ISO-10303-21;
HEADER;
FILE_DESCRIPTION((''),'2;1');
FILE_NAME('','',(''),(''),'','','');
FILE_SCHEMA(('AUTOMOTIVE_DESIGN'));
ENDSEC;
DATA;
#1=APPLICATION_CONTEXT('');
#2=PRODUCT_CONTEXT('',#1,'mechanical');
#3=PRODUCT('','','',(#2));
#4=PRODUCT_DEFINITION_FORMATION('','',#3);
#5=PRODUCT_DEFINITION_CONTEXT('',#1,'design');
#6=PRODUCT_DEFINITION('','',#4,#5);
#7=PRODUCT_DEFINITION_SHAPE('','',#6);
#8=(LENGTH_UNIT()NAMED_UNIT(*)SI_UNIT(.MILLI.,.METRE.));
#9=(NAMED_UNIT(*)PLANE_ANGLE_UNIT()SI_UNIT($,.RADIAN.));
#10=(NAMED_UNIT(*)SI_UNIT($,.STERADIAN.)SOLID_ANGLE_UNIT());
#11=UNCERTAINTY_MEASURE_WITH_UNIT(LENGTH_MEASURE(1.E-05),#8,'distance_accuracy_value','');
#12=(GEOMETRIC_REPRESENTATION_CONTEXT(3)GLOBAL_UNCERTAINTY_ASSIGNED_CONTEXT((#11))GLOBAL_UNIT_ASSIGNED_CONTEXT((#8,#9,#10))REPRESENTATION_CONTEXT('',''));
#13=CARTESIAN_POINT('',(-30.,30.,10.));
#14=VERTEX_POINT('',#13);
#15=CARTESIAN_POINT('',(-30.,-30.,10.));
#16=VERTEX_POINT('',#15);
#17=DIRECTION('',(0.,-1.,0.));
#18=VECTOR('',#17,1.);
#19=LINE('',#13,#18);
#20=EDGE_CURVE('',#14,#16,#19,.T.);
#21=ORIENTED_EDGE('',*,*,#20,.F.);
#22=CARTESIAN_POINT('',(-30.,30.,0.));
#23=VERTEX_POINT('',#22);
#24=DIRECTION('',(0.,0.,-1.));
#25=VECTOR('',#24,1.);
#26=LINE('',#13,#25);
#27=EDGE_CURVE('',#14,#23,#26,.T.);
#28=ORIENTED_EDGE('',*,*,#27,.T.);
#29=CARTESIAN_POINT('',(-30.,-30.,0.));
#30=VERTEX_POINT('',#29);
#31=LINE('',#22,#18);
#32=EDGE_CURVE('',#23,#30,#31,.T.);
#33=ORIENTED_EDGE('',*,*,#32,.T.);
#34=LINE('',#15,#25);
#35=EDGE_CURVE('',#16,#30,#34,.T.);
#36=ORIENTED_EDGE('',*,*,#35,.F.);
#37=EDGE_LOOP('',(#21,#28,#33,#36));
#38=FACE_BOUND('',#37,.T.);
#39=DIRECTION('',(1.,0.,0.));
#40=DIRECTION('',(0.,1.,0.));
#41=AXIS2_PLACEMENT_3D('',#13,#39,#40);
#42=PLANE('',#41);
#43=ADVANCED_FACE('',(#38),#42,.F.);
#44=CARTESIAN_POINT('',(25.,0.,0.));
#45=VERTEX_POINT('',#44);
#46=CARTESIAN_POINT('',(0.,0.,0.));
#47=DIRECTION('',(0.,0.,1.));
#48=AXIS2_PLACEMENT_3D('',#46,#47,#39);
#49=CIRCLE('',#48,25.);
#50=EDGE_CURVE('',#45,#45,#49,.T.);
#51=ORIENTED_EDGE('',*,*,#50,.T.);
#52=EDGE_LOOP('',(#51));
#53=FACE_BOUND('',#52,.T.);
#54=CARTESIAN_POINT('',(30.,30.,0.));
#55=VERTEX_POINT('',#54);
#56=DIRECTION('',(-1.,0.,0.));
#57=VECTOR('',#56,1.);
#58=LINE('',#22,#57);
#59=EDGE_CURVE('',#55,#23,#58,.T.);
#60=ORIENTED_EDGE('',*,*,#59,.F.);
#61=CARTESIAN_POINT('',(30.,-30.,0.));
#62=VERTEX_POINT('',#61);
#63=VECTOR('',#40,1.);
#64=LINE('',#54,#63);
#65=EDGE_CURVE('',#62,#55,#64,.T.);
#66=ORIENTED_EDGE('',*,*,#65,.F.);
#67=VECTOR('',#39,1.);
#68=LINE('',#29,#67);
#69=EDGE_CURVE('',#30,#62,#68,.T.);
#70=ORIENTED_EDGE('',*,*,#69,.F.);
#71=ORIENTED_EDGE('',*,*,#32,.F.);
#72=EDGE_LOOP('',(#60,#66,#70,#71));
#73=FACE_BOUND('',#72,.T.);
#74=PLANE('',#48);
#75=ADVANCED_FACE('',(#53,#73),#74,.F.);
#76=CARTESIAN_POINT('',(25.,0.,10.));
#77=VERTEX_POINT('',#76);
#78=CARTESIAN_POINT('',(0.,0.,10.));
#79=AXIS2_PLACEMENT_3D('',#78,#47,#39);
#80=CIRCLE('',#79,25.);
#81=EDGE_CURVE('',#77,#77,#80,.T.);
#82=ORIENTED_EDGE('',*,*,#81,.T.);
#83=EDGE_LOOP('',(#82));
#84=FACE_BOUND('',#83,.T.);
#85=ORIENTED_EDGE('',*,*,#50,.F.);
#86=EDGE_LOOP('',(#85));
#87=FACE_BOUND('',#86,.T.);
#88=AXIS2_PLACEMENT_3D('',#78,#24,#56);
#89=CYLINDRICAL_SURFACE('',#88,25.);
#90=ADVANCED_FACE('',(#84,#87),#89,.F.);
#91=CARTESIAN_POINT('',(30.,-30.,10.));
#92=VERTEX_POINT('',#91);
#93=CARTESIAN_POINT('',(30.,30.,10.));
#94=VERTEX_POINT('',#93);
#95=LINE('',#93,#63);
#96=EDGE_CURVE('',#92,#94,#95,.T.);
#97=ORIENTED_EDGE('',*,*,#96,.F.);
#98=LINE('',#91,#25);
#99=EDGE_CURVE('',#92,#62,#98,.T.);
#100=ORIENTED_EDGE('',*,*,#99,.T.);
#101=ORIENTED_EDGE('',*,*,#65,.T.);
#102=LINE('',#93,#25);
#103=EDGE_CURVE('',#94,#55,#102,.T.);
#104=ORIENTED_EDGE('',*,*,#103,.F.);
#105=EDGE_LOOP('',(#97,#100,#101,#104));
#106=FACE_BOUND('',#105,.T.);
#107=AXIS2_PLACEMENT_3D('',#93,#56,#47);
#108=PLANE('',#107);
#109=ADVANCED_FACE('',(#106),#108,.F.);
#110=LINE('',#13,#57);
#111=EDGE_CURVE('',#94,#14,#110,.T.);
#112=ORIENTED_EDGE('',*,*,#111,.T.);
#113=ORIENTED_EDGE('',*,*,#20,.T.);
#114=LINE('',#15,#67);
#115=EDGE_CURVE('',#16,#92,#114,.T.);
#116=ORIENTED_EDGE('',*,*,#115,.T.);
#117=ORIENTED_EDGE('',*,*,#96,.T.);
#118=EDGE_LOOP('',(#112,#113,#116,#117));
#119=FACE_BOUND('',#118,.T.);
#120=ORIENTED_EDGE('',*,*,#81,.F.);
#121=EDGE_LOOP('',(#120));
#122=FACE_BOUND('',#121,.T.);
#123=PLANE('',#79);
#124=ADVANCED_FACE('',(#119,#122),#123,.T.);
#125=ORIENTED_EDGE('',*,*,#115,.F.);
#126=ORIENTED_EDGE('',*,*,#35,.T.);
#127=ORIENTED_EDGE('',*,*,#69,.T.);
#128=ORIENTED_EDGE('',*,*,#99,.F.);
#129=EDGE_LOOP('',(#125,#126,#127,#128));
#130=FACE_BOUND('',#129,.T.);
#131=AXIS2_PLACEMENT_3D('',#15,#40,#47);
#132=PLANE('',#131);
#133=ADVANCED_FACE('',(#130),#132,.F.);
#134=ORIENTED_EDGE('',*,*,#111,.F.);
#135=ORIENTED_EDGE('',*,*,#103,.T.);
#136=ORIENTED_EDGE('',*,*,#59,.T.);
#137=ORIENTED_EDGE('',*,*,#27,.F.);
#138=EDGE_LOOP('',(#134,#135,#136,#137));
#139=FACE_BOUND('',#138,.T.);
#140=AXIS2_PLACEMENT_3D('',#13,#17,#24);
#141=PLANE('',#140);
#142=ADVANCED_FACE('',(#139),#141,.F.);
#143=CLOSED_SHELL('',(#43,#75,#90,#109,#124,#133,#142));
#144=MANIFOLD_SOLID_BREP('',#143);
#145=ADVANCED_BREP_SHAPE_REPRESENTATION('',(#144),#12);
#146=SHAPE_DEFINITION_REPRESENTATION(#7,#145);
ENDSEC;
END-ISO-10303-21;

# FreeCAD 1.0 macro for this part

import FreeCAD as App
import Part
import Sketcher

V = App.Vector
Q = App.Units.Quantity


def add_polygon(sketch, points):
    """Adds a closed chain of lines whose ends are joined by coincident constraints."""
    first, n = sketch.GeometryCount, len(points)
    for a, b in zip(points, points[1:] + points[:1]):
        sketch.addGeometry(Part.LineSegment(App.Vector(*a, 0), App.Vector(*b, 0)), False)
    for i in range(n):
        sketch.addConstraint(Sketcher.Constraint("Coincident", first + i, 2, first + (i + 1) % n, 1))

doc = App.newDocument("Part")
params = doc.addObject("Spreadsheet::Sheet", "Params")
for row, (alias, value) in enumerate([
    ("sketch1_diameter", "50 mm"),
    ("sketch1_width", "60 mm"),
    ("pad1_length", "10 mm"),
], start=1):
    params.set(f"A{row}", alias)
    params.set(f"B{row}", "=" + value)
    params.setAlias(f"B{row}", alias)

body = doc.addObject("PartDesign::Body", "Body")

# Sketch on XY plane
sketch1 = doc.addObject("Sketcher::SketchObject", "Sketch")
body.addObject(sketch1)
sketch1.AttachmentSupport = (doc.XY_Plane, [""])
sketch1.MapMode = "FlatFace"
add_polygon(sketch1, [(-30, 30), (-30, -30), (30, -30), (30, 30)])  # lines 0-3
sketch1.addGeometry(Part.Circle(V(0, 0, 0), V(0, 0, 1), 25), False)  # 4
sketch1.addConstraint([
    Sketcher.Constraint("Vertical", 0),
    Sketcher.Constraint("Horizontal", 1),
    Sketcher.Constraint("Vertical", 2),
    Sketcher.Constraint("Horizontal", 3),
    Sketcher.Constraint("Coincident", 4, 3, -1, 1),
    Sketcher.Constraint("Symmetric", 0, 2, 2, 2, -1, 1),
    Sketcher.Constraint("Equal", 3, 0),
    Sketcher.Constraint("Diameter", 4, Q("50 mm")),
    Sketcher.Constraint("DistanceX", 1, 1, 1, 2, Q("60 mm")),
])
sketch1.setExpression("Constraints[11]", "Params.sketch1_diameter")
sketch1.setExpression("Constraints[12]", "Params.sketch1_width")
pad1 = doc.addObject("PartDesign::Pad", "Pad")
body.addObject(pad1)
pad1.Profile = sketch1
pad1.setExpression("Length", "Params.pad1_length")

doc.recompute()
